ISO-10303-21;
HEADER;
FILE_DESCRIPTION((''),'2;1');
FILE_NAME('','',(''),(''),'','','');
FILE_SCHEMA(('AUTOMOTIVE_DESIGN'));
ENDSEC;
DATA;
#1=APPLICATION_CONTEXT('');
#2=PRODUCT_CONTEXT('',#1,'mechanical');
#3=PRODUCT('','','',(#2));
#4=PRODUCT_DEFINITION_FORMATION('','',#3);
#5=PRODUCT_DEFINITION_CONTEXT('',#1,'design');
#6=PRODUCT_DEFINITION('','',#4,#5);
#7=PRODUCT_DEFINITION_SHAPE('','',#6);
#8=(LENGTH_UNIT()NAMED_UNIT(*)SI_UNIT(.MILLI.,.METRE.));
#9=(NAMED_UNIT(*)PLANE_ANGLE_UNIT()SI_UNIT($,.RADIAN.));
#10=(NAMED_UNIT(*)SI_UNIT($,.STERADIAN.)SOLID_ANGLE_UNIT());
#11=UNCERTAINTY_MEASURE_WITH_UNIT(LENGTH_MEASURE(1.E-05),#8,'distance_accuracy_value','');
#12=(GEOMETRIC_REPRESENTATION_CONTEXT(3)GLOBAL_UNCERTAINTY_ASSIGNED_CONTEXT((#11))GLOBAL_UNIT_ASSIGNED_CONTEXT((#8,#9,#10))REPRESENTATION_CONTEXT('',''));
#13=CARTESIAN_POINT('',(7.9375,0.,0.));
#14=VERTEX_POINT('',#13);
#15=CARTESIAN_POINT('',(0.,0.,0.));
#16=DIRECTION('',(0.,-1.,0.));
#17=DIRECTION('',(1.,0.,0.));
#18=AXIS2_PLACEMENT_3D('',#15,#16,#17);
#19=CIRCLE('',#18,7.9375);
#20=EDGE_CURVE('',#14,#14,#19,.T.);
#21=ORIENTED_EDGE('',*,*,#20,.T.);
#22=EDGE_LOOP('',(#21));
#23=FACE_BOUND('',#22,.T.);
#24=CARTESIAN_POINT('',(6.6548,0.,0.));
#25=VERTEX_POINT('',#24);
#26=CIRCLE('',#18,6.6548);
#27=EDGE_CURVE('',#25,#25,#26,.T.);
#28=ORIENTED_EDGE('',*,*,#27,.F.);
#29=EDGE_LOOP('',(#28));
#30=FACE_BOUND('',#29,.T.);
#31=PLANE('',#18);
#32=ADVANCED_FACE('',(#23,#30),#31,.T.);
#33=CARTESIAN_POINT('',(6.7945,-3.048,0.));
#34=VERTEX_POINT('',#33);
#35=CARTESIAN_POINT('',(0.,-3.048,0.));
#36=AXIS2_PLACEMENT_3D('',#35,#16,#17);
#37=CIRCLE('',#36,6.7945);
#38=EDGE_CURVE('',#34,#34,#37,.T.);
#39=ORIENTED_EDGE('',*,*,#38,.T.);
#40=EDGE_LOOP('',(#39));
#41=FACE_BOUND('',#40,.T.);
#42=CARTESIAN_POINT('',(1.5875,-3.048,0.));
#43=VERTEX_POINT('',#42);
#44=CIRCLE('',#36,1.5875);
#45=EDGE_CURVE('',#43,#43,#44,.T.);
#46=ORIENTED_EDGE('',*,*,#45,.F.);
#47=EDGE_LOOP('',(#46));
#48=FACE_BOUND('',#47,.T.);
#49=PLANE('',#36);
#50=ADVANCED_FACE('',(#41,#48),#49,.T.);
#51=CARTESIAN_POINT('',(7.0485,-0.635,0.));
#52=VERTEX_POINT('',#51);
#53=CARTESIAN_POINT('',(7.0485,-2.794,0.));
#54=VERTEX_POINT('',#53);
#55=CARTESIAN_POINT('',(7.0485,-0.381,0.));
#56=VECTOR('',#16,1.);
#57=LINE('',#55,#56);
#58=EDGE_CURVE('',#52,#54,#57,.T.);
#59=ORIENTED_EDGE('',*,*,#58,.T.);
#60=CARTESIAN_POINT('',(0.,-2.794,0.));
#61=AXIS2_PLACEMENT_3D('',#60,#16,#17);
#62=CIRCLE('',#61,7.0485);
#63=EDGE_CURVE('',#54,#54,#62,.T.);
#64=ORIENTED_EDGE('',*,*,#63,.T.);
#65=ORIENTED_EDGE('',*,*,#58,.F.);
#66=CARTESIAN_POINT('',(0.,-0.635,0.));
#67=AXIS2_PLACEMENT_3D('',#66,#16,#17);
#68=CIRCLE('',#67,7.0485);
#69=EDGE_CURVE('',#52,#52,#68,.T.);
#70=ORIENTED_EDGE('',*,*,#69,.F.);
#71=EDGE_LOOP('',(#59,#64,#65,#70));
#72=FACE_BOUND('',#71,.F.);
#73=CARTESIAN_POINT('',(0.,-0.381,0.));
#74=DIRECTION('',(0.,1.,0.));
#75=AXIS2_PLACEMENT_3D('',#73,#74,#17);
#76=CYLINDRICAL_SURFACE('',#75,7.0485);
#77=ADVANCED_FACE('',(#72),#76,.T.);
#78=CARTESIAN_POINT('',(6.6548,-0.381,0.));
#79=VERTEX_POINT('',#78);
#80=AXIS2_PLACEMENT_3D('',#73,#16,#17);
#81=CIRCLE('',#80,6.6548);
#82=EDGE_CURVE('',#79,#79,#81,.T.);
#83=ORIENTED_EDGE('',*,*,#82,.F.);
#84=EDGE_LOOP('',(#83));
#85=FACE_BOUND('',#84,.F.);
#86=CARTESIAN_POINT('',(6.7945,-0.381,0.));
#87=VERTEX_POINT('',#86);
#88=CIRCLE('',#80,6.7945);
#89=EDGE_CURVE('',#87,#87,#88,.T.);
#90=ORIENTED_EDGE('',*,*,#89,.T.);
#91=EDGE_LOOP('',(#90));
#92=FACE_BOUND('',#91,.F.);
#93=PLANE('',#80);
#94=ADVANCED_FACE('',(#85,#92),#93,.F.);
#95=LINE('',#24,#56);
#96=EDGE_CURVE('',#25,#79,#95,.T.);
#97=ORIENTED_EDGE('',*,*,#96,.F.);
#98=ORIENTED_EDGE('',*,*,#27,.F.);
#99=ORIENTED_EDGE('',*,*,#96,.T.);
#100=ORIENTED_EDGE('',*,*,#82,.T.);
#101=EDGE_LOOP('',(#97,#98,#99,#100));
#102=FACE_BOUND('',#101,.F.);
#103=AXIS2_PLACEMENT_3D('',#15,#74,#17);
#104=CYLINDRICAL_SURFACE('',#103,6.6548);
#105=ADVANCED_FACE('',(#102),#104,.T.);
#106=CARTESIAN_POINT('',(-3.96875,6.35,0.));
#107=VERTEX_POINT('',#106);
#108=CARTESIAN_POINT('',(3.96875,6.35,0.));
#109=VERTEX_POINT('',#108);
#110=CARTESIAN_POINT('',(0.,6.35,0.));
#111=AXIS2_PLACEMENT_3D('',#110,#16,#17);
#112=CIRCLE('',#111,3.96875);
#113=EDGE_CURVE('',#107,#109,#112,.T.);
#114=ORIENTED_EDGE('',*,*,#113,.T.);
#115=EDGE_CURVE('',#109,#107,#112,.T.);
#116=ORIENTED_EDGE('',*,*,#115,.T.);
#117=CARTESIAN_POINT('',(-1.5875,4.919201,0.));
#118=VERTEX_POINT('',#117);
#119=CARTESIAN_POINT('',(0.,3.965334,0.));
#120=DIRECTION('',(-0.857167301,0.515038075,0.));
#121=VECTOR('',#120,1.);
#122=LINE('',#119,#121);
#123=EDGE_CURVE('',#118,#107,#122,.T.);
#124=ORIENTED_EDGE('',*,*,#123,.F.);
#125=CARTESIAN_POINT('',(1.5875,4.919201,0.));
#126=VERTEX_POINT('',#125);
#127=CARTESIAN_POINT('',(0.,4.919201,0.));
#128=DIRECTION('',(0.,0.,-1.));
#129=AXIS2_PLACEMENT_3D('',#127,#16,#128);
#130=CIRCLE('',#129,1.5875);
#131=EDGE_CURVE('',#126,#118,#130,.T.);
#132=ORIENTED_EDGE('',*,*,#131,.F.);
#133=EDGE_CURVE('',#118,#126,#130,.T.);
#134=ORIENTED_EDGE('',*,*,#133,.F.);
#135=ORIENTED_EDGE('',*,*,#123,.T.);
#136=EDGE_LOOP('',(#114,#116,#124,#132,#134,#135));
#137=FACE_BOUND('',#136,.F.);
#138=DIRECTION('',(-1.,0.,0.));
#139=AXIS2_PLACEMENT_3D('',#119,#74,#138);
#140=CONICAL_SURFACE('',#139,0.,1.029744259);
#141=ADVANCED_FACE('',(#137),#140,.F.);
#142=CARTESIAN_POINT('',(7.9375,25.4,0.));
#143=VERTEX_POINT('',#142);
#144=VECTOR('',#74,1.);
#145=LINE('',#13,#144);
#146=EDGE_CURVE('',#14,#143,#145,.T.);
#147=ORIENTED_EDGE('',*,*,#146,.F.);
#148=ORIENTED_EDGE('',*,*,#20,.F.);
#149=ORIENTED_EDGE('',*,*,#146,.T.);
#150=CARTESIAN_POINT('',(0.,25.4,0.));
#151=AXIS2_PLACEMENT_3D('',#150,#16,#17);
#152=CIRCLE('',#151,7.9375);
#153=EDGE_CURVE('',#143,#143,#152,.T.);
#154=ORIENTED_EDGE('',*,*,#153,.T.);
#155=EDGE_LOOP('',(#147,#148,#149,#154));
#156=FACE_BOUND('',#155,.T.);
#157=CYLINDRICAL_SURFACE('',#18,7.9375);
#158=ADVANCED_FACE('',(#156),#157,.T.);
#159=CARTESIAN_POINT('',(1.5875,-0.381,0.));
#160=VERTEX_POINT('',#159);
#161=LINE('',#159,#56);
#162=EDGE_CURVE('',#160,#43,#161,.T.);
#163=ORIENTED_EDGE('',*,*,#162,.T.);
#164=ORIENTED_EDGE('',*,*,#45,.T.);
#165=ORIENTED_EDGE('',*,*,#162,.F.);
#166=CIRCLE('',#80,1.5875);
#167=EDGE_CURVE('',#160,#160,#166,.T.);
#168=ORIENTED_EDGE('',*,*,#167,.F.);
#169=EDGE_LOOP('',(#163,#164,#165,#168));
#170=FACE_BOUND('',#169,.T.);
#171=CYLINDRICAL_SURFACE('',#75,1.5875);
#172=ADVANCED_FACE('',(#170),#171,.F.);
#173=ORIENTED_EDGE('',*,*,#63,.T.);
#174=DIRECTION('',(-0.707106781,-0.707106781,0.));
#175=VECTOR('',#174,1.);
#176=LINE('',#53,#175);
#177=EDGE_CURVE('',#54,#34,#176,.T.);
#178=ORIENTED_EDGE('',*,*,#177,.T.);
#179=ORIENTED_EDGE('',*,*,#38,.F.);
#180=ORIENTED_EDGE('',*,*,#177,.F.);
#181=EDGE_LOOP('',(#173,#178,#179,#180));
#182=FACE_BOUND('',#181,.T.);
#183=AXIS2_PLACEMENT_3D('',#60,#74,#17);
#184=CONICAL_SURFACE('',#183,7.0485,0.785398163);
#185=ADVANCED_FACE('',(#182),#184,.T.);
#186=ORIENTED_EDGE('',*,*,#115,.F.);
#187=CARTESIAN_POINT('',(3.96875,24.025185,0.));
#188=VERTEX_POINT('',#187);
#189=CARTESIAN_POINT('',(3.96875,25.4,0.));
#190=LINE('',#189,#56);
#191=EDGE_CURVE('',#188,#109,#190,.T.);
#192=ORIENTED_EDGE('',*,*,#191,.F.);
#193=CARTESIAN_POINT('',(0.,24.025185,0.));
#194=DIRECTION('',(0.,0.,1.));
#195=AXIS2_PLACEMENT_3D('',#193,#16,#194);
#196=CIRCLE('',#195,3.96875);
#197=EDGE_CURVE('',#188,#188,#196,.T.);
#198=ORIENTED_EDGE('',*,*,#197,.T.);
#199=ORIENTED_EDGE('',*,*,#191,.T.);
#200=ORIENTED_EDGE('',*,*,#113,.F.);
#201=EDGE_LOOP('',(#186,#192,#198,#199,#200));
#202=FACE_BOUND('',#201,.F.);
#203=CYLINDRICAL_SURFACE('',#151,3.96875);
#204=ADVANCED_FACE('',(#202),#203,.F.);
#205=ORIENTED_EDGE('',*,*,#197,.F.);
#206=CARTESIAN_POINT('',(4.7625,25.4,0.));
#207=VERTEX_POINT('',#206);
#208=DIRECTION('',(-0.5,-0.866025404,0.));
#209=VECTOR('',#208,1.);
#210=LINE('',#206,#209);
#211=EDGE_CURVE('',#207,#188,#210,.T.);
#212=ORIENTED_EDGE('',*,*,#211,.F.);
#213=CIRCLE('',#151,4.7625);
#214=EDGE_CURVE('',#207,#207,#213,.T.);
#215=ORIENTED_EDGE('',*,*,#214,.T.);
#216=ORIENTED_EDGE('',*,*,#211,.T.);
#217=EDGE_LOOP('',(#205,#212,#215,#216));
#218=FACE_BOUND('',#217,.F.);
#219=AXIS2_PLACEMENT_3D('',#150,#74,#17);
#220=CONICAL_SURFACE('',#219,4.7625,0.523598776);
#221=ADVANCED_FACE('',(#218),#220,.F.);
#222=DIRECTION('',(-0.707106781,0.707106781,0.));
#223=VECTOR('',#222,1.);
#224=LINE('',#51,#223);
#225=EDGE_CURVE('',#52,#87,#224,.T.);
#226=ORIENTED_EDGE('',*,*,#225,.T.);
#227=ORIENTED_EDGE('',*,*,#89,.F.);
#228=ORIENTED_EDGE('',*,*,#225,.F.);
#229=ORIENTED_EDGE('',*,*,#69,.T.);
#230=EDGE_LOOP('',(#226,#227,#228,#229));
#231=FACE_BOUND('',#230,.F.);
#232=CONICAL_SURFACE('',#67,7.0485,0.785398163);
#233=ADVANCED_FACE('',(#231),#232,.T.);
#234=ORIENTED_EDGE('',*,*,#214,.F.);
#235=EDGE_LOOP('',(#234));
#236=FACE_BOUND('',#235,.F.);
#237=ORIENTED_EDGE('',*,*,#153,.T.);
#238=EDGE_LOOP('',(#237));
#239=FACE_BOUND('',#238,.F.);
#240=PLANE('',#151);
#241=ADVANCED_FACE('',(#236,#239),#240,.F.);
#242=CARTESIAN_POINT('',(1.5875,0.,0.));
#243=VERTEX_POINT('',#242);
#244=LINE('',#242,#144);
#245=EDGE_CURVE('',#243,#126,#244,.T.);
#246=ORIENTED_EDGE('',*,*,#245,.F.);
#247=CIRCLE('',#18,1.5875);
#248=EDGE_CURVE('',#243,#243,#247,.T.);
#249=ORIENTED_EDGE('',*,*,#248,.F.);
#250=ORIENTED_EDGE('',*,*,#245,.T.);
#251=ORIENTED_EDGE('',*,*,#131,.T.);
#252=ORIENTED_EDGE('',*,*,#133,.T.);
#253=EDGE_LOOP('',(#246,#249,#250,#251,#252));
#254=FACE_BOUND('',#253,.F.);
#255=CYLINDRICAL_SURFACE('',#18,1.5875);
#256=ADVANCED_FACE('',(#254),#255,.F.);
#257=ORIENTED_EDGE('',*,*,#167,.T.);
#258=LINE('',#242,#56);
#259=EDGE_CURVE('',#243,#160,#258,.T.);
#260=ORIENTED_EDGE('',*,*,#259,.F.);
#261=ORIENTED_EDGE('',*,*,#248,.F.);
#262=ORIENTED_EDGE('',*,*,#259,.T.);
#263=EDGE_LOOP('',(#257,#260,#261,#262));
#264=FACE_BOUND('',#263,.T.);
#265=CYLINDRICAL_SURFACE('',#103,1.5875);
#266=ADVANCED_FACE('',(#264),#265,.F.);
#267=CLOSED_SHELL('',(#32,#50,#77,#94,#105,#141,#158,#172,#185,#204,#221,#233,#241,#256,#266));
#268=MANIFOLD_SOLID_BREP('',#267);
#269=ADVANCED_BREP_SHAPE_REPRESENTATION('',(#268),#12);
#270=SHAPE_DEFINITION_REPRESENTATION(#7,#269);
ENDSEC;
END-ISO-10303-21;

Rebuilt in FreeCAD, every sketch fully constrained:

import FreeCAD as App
import Part
import Sketcher
from FreeCAD import Vector
Q = App.Units.Quantity


def edges_at(feature, points):
    """Names of the edges that pass closest to the given points."""
    edges = feature.Shape.Edges
    near = lambda p: min(range(len(edges)), key=lambda i: edges[i].distToShape(Part.Vertex(*p))[0])
    return sorted({f"Edge{near(p) + 1}" for p in points})

doc = App.newDocument("Part")
body = doc.addObject("PartDesign::Body", "Body")

sketch1 = body.newObject("Sketcher::SketchObject", "Sketch")
sketch1.AttachmentSupport = (doc.getObject("XZ_Plane"), [""])
sketch1.MapMode = "FlatFace"
sketch1.addGeometry([
    Part.Circle(Vector(0, 0, 0), Vector(0, 0, 1), 7.9),
    Part.Circle(Vector(0, 0, 0), Vector(0, 0, 1), 1.6),
], False)
sketch1.addConstraint([
    Sketcher.Constraint("Coincident", 0, 3, -1, 1),
    Sketcher.Constraint("Coincident", 1, 3, -1, 1),
    Sketcher.Constraint("Diameter", 0, Q("0.625 in")),
    Sketcher.Constraint("Diameter", 1, Q("0.125 in")),
])
pad1 = body.newObject("PartDesign::Pad", "Pad")
pad1.Profile = sketch1
pad1.Length = Q("1 in")
pad1.Reversed = True

sketch2 = body.newObject("Sketcher::SketchObject", "Sketch001")
sketch2.AttachmentSupport = (doc.getObject("XZ_Plane"), [""])
sketch2.MapMode = "FlatFace"
sketch2.AttachmentOffset = App.Placement(Vector(0, 0, -1 * 25.4), App.Rotation())
sketch2.addGeometry(Part.Circle(Vector(0, 0, 0), Vector(0, 0, 1), 4), False)
sketch2.addConstraint([
    Sketcher.Constraint("Coincident", 0, 3, -1, 1),
    Sketcher.Constraint("Diameter", 0, Q("0.3125 in")),
])
doc.recompute()
hole = body.newObject("PartDesign::Hole", "Hole")
hole.Profile = sketch2
hole.ThreadType = "None"
hole.Diameter = Q("0.3125 in")
hole.DepthType = "Dimension"
hole.Depth = Q("0.75 in")
hole.DrillPoint = "Angled"
hole.DrillPointAngle = 118
hole.HoleCutType = "Countersink"
hole.HoleCutDiameter = Q("0.375 in")
hole.HoleCutCountersinkAngle = 60
hole.Reversed = True

sketch3 = body.newObject("Sketcher::SketchObject", "Sketch002")
sketch3.AttachmentSupport = (doc.getObject("XZ_Plane"), [""])
sketch3.MapMode = "FlatFace"
sketch3.addGeometry([
    Part.Circle(Vector(0, 0, 0), Vector(0, 0, 1), 6.7),
    Part.Circle(Vector(0, 0, 0), Vector(0, 0, 1), 1.6),
], False)
sketch3.addConstraint([
    Sketcher.Constraint("Coincident", 0, 3, -1, 1),
    Sketcher.Constraint("Coincident", 1, 3, -1, 1),
    Sketcher.Constraint("Diameter", 0, Q("0.524 in")),
    Sketcher.Constraint("Diameter", 1, Q("0.125 in")),
])
pad2 = body.newObject("PartDesign::Pad", "Pad001")
pad2.Profile = sketch3
pad2.Length = Q("0.015 in")

sketch4 = body.newObject("Sketcher::SketchObject", "Sketch003")
sketch4.AttachmentSupport = (doc.getObject("XZ_Plane"), [""])
sketch4.MapMode = "FlatFace"
sketch4.AttachmentOffset = App.Placement(Vector(0, 0, 0.015 * 25.4), App.Rotation())
sketch4.addGeometry([
    Part.Circle(Vector(0, 0, 0), Vector(0, 0, 1), 7),
    Part.Circle(Vector(0, 0, 0), Vector(0, 0, 1), 1.6),
], False)
sketch4.addConstraint([
    Sketcher.Constraint("Coincident", 0, 3, -1, 1),
    Sketcher.Constraint("Coincident", 1, 3, -1, 1),
    Sketcher.Constraint("Diameter", 0, Q("0.555 in")),
    Sketcher.Constraint("Diameter", 1, Q("0.125 in")),
])
pad3 = body.newObject("PartDesign::Pad", "Pad002")
pad3.Profile = sketch4
pad3.Length = Q("0.105 in")
doc.recompute()

chamfer = body.newObject("PartDesign::Chamfer", "Chamfer")
chamfer.Base = (pad3, edges_at(pad3, [(-7.048, -3.048, 0), (-7.048, -0.381, 0)]))
chamfer.Size = Q("0.01 in")

doc.recompute()
